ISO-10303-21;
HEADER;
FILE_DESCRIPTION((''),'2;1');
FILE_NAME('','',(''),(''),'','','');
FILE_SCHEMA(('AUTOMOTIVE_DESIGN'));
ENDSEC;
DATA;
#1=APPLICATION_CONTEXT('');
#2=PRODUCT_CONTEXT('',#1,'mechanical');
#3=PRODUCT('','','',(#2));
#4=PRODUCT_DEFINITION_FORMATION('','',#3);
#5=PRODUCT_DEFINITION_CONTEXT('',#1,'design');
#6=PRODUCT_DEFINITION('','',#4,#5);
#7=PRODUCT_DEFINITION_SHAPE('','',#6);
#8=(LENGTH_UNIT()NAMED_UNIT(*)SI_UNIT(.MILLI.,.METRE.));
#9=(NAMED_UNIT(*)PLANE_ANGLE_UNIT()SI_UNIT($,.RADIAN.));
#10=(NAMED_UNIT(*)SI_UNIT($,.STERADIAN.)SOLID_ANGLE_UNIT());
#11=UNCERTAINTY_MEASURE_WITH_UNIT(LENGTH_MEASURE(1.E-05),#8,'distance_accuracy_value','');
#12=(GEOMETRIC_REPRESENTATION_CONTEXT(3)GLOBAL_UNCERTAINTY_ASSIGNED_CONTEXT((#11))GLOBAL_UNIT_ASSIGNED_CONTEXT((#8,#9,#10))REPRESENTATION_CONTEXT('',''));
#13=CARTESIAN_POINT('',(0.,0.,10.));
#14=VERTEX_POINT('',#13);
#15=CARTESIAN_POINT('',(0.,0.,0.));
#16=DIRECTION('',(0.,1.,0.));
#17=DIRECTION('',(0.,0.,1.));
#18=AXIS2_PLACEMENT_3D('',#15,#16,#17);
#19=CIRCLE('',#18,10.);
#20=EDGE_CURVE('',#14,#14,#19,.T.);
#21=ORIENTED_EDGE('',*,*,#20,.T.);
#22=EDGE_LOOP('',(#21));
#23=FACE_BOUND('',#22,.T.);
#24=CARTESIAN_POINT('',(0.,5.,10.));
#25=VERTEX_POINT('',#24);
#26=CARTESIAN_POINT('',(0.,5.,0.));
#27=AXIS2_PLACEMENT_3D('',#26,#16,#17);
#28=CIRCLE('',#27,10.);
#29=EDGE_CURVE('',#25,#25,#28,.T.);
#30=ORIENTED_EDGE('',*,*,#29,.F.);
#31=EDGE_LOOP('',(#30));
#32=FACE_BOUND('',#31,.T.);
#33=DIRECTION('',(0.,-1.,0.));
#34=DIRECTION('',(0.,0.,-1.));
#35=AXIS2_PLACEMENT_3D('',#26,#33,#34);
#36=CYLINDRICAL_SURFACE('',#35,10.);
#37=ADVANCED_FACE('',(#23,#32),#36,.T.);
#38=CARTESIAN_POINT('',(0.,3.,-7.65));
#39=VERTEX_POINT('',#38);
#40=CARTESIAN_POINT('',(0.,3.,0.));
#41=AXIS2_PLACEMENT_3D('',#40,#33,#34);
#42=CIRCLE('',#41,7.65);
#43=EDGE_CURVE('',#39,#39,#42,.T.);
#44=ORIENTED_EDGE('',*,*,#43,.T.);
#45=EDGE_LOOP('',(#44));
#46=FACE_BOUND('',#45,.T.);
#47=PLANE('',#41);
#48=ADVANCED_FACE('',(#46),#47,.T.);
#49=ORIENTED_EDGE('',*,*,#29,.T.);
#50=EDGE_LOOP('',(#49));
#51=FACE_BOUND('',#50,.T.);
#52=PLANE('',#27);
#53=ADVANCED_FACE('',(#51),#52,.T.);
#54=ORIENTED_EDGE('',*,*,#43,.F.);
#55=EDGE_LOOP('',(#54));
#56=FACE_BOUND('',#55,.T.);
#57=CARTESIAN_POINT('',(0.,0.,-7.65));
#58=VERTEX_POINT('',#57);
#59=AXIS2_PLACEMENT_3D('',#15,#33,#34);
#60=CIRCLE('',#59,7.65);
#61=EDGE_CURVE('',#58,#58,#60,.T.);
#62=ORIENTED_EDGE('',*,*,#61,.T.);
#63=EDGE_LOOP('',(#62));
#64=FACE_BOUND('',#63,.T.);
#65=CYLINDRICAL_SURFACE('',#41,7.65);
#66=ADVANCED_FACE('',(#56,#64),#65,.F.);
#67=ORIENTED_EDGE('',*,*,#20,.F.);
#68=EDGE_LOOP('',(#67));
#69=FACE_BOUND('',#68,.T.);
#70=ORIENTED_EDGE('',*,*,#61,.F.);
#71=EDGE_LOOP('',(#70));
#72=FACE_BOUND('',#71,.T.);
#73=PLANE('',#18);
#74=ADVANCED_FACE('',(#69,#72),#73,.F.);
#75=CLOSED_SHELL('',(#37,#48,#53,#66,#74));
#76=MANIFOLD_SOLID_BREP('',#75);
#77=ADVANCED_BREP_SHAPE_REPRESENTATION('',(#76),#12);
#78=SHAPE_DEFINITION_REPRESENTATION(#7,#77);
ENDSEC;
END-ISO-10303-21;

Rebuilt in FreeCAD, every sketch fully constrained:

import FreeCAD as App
import Part
import Sketcher
Q = App.Units.Quantity

doc = App.newDocument("Part")
body = doc.addObject("PartDesign::Body", "Body")

# Sketch on XZ plane
sketch1 = body.newObject("Sketcher::SketchObject", "Sketch")
sketch1.AttachmentSupport = (doc.getObject("XZ_Plane"), [""])
sketch1.MapMode = "FlatFace"
sketch1.addGeometry(Part.Circle(App.Vector(0, 0, 0), App.Vector(0, 0, 1), 10), False)
sketch1.addConstraint([
    Sketcher.Constraint("Coincident", 0, 3, -1, 1),
    Sketcher.Constraint("Diameter", 0, Q("20 mm")),
])
pad1 = body.newObject("PartDesign::Pad", "Pad")
pad1.Profile = sketch1
pad1.Length = 5
pad1.Reversed = True

# Sketch on XZ plane
sketch2 = body.newObject("Sketcher::SketchObject", "Sketch001")
sketch2.AttachmentSupport = (doc.getObject("XZ_Plane"), [""])
sketch2.MapMode = "FlatFace"
sketch2.addGeometry(Part.Circle(App.Vector(0, 0, 0), App.Vector(0, 0, 1), 8), False)
sketch2.addConstraint([
    Sketcher.Constraint("Coincident", 0, 3, -1, 1),
    Sketcher.Constraint("Diameter", 0, Q("15.3 mm")),
])
pocket1 = body.newObject("PartDesign::Pocket", "Pocket")
pocket1.Profile = sketch2
pocket1.Length = 3

doc.recompute()
